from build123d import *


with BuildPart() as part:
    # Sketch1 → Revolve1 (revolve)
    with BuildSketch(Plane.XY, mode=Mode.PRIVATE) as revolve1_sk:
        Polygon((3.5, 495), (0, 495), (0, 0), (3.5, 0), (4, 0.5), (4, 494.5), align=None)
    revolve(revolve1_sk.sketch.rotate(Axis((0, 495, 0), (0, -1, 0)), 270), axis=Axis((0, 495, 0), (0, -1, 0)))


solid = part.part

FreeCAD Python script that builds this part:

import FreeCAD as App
import Part
import Sketcher
from FreeCAD import Vector
Q = App.Units.Quantity


def add_polygon(sketch, points):
    """Adds a closed chain of lines whose ends are joined by coincident constraints."""
    first, n = sketch.GeometryCount, len(points)
    for a, b in zip(points, points[1:] + points[:1]):
        sketch.addGeometry(Part.LineSegment(App.Vector(*a, 0), App.Vector(*b, 0)), False)
    for i in range(n):
        sketch.addConstraint(Sketcher.Constraint("Coincident", first + i, 2, first + (i + 1) % n, 1))

doc = App.newDocument("Part")
body = doc.addObject("PartDesign::Body", "Body")

sketch1 = doc.addObject("Sketcher::SketchObject", "Sketch")
body.addObject(sketch1)
sketch1.AttachmentSupport = (doc.XY_Plane, [""])
sketch1.MapMode = "FlatFace"
add_polygon(sketch1, [(3.5, 495), (0, 495), (0, 0), (3.5, 0), (4, 0.5), (4, 494.5)])
sketch1.addConstraint(Sketcher.Constraint("Horizontal", 0))
sketch1.addConstraint(Sketcher.Constraint("Vertical", 1))
sketch1.addConstraint(Sketcher.Constraint("Horizontal", 2))
sketch1.addConstraint(Sketcher.Constraint("Vertical", 4))
sketch1.addConstraint(Sketcher.Constraint("Coincident", 1, 2, -1, 1))
sketch1.addConstraint(Sketcher.Constraint("Perpendicular", 3, 5))
sketch1.addConstraint(Sketcher.Constraint("Vertical", 2, 2, 5, 2))
sketch1.addConstraint(Sketcher.Constraint("Equal", 3, 5))
sketch1.addConstraint(Sketcher.Constraint("DistanceY", 1, 2, 1, 1, Q("495 mm")))
sketch1.addConstraint(Sketcher.Constraint("DistanceY", 4, 1, 4, 2, Q("494 mm")))
sketch1.addConstraint(Sketcher.Constraint("DistanceX", 0, 2, 0, 1, Q("3.5 mm")))
revolution = doc.addObject("PartDesign::Revolution", "Revolution")
body.addObject(revolution)
revolution.Profile = sketch1
revolution.ReferenceAxis = (sketch1, ["V_Axis"])
revolution.Angle = 360

doc.recompute()
